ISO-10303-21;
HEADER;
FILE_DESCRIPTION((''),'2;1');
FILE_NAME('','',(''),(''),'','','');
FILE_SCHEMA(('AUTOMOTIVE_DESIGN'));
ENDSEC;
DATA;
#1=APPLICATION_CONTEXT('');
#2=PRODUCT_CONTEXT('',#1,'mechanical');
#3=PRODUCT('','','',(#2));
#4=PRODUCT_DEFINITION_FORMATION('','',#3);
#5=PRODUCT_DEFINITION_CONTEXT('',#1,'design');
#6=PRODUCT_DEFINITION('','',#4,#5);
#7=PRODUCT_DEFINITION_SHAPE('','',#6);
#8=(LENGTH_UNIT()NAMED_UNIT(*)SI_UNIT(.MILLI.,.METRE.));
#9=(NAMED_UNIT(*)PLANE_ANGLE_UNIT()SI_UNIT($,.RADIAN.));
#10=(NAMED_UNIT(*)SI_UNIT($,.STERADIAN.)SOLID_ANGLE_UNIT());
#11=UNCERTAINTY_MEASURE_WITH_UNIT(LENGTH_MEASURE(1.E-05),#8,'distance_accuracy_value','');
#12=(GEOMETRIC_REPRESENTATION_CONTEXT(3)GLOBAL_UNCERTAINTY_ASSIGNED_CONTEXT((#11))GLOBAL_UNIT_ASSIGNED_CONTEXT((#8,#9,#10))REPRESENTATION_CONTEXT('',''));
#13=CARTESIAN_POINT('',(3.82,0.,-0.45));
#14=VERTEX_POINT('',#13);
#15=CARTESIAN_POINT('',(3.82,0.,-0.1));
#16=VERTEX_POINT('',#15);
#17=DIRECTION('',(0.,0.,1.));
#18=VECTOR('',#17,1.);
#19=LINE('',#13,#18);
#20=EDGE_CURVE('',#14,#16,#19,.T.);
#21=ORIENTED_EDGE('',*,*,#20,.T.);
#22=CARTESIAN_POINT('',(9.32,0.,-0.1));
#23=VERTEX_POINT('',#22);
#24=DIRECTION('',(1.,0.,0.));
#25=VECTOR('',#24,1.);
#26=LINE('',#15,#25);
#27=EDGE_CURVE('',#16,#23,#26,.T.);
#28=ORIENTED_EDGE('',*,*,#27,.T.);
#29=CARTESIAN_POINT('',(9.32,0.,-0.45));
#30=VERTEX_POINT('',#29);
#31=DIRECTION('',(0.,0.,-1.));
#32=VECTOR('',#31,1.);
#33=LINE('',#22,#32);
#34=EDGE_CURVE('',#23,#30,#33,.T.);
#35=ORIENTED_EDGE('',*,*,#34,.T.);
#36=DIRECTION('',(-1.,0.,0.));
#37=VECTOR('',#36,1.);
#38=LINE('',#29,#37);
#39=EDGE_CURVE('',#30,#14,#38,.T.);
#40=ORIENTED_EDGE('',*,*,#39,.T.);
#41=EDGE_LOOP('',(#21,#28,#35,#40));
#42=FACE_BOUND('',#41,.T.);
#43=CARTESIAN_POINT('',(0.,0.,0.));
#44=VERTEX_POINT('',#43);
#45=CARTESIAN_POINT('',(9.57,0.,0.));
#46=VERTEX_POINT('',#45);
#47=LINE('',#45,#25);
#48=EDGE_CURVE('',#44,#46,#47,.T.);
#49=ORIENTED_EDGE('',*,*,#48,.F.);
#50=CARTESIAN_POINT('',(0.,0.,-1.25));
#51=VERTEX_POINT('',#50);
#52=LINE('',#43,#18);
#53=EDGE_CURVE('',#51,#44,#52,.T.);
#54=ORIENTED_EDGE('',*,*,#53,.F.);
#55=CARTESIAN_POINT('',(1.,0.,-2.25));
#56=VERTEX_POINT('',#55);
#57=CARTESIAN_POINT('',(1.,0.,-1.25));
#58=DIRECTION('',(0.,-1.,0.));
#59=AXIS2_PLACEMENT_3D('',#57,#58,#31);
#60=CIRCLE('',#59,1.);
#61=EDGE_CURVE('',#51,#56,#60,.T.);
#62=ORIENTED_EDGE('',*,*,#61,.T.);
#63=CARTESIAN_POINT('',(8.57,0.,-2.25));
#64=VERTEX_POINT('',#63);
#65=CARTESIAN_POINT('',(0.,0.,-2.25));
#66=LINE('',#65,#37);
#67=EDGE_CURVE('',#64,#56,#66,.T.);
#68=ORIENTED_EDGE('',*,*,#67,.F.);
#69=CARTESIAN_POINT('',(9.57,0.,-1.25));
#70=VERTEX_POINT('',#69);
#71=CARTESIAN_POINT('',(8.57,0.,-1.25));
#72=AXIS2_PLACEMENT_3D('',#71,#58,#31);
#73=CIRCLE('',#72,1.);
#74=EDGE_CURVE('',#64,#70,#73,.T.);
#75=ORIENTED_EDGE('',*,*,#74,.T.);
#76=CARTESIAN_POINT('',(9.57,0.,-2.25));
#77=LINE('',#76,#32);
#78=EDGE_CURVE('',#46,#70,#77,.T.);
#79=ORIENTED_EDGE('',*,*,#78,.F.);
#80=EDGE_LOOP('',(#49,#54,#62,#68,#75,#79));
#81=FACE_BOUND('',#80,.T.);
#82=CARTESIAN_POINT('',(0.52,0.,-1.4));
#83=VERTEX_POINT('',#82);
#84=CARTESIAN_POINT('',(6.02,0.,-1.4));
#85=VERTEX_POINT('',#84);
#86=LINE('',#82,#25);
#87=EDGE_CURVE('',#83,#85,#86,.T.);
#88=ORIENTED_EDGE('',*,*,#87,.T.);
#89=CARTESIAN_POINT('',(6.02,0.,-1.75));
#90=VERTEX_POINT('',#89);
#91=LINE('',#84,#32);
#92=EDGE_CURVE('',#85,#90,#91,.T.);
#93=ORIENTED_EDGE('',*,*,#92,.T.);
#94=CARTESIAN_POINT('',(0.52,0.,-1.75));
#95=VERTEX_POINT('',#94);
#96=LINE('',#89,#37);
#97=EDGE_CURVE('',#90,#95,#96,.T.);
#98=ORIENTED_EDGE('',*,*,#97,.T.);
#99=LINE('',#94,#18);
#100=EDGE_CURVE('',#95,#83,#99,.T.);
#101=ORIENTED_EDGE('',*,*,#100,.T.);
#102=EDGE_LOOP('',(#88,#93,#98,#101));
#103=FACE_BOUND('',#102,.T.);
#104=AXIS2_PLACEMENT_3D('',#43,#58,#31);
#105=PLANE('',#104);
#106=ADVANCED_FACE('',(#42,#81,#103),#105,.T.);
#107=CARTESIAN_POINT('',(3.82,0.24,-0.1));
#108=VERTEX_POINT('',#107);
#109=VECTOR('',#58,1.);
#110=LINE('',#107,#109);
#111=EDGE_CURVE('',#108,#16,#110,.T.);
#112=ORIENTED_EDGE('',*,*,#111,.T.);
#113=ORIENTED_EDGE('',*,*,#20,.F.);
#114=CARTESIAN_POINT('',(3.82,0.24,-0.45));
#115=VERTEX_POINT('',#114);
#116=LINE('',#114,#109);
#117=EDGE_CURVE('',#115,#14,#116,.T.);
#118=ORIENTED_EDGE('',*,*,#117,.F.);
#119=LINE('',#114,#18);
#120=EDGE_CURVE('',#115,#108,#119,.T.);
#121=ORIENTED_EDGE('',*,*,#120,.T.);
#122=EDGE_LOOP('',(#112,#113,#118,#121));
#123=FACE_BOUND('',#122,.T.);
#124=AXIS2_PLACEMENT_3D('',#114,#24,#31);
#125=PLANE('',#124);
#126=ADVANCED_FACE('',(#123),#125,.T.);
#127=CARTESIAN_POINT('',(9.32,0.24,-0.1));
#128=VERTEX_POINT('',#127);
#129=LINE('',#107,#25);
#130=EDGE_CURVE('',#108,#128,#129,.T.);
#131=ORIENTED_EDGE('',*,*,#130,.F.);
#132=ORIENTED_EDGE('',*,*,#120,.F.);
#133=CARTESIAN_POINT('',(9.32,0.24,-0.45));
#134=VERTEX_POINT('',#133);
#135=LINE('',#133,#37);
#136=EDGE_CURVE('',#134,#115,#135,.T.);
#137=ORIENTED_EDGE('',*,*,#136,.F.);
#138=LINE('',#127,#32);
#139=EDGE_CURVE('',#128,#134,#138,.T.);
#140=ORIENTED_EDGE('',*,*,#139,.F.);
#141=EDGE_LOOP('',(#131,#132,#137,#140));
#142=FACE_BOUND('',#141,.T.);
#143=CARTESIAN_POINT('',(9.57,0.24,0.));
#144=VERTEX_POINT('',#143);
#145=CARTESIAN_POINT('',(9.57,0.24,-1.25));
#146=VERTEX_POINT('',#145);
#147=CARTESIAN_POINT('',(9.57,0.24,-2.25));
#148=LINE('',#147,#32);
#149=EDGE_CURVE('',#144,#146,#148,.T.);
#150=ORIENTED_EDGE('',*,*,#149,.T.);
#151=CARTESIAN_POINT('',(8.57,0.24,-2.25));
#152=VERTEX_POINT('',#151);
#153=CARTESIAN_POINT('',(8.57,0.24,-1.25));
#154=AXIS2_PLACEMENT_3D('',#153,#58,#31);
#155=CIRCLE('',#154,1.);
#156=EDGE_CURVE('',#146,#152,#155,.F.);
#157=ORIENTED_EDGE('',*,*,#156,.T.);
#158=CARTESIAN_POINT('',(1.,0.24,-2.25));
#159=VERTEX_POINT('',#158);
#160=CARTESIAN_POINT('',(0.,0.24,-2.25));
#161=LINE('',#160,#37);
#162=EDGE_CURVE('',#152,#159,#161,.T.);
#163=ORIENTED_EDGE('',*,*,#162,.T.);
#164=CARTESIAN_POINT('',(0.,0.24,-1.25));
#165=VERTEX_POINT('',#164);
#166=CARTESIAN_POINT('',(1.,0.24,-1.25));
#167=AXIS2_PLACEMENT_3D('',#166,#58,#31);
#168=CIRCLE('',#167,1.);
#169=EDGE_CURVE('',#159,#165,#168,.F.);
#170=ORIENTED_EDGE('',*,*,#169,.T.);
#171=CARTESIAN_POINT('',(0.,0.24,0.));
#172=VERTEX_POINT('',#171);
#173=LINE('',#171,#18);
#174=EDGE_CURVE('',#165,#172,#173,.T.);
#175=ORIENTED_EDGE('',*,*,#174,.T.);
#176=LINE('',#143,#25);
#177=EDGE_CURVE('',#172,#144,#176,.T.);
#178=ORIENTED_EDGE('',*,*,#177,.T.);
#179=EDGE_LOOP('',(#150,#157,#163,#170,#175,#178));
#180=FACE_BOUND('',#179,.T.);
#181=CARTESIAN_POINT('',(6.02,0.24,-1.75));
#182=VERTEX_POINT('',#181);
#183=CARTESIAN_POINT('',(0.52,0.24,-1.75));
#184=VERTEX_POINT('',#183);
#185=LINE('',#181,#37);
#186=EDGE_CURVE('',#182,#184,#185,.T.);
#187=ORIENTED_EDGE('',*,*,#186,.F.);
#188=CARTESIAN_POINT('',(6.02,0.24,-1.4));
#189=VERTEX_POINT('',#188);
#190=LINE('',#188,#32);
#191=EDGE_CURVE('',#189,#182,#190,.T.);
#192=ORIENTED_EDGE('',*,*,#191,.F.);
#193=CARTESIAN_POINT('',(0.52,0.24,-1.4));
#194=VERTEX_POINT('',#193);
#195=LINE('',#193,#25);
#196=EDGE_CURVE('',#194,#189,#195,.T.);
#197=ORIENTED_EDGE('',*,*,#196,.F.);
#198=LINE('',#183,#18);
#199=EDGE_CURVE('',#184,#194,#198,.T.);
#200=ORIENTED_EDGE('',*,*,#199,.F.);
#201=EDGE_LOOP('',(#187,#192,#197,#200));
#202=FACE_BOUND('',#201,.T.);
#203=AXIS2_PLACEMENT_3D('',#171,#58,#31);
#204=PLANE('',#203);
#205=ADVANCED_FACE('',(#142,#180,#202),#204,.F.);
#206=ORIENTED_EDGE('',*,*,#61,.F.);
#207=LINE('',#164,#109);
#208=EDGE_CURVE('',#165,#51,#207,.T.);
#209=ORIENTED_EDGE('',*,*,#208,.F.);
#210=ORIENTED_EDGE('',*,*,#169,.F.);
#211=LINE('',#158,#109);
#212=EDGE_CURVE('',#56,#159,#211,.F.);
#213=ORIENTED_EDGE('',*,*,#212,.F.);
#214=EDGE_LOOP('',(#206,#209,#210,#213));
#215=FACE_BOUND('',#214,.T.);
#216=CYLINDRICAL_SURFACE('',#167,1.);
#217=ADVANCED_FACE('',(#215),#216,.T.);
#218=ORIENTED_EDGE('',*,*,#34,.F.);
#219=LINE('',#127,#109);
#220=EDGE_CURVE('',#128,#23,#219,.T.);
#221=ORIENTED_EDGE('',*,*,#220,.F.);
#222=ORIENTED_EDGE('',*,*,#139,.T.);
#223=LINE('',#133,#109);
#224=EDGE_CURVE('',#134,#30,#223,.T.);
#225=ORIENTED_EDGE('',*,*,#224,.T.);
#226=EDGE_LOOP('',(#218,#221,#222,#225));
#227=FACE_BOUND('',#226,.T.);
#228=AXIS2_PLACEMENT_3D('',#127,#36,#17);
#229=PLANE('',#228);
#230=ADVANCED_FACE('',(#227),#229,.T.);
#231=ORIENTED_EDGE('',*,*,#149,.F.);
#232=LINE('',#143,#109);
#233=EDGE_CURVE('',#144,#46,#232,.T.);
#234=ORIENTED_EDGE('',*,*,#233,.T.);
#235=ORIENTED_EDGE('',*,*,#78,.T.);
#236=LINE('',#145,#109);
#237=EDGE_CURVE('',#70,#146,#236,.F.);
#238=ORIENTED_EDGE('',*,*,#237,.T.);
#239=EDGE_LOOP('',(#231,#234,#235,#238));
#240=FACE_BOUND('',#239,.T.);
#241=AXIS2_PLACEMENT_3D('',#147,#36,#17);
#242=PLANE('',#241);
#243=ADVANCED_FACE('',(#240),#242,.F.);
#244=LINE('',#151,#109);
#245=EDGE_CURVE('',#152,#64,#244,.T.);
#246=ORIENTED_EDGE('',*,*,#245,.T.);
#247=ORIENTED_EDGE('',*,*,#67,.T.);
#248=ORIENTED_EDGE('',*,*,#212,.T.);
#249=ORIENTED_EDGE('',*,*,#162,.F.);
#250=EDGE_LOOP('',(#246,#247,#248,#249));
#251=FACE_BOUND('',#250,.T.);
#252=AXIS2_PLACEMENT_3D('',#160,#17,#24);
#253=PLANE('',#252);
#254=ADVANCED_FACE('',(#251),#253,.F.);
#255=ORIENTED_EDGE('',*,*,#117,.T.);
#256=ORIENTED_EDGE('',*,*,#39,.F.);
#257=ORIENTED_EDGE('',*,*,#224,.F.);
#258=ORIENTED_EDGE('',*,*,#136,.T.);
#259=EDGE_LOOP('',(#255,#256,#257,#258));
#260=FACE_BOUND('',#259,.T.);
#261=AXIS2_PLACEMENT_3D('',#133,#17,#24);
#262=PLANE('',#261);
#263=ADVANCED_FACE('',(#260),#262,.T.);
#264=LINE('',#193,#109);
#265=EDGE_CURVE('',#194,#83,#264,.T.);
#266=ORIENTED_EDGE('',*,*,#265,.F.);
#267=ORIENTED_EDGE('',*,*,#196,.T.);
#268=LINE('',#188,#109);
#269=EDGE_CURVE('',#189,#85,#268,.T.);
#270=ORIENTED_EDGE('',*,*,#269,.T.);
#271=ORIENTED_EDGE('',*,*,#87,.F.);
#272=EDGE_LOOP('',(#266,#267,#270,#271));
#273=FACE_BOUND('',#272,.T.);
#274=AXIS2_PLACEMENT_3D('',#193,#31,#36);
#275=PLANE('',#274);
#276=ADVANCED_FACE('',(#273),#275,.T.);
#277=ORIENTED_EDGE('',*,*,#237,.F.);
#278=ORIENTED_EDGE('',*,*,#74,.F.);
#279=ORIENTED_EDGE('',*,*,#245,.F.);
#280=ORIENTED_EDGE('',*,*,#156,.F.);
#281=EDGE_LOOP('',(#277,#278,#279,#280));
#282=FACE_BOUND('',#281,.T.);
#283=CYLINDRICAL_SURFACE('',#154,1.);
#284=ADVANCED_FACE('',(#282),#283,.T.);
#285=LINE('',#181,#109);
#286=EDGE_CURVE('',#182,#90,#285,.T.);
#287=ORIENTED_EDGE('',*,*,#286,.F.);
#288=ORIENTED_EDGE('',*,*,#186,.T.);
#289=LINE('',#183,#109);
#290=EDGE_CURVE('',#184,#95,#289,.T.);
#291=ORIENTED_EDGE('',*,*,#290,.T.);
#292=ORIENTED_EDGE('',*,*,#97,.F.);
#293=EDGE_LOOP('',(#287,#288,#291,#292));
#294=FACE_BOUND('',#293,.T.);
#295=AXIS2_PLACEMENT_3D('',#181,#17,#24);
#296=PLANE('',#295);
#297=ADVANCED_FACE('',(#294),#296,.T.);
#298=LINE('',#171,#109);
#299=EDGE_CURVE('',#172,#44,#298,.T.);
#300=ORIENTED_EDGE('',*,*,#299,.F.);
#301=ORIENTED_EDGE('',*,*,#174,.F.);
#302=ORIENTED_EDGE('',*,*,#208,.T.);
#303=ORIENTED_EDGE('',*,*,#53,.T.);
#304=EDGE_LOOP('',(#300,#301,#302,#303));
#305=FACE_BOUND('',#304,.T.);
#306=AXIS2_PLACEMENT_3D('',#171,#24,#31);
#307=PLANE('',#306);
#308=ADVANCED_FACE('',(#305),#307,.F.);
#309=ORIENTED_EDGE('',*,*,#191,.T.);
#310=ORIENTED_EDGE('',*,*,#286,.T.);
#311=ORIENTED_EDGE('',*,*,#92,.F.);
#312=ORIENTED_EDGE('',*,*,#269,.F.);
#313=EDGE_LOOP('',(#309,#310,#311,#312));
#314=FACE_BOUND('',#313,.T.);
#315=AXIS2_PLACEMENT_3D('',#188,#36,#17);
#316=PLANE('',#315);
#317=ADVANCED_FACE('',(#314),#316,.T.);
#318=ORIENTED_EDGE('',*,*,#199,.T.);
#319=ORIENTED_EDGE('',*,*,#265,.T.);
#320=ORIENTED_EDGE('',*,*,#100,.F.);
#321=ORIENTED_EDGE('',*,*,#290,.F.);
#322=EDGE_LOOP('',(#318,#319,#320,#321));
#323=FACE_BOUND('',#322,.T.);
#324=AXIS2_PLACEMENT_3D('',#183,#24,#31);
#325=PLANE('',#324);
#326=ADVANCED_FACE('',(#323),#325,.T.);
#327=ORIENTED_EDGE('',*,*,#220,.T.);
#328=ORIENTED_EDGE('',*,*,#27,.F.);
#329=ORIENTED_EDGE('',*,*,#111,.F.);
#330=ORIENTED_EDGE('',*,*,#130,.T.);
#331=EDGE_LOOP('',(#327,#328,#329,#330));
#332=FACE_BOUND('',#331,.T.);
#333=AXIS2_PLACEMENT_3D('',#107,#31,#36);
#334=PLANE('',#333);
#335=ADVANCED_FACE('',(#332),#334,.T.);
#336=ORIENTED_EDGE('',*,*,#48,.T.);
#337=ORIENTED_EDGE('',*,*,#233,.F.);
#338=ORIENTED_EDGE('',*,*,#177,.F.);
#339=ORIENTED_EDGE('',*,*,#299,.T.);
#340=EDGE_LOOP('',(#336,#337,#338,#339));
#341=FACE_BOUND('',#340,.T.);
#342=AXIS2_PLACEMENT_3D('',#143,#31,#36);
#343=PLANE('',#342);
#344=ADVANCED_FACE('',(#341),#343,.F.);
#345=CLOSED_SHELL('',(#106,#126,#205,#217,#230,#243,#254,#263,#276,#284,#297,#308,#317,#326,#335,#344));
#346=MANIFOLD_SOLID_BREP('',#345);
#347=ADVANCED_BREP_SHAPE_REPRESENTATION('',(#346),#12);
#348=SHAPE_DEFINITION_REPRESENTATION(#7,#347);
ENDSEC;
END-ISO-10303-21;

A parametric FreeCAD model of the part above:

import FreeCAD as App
import Part
import Sketcher

V = App.Vector


def edges_at(feature, points):
    """Names of the edges that pass closest to the given points."""
    edges = feature.Shape.Edges
    near = lambda p: min(range(len(edges)), key=lambda i: edges[i].distToShape(Part.Vertex(*p))[0])
    return sorted({f"Edge{near(p) + 1}" for p in points})


def add_polygon(sketch, points):
    """Adds a closed chain of lines whose ends are joined by coincident constraints."""
    first, n = sketch.GeometryCount, len(points)
    for a, b in zip(points, points[1:] + points[:1]):
        sketch.addGeometry(Part.LineSegment(App.Vector(*a, 0), App.Vector(*b, 0)), False)
    for i in range(n):
        sketch.addConstraint(Sketcher.Constraint("Coincident", first + i, 2, first + (i + 1) % n, 1))

doc = App.newDocument("Part")
body = doc.addObject("PartDesign::Body", "Body")

# Sketch on XZ plane
sketch1 = body.newObject("Sketcher::SketchObject", "Sketch")
sketch1.AttachmentSupport = (doc.getObject("XZ_Plane"), [""])
sketch1.MapMode = "FlatFace"
add_polygon(sketch1, [(0, -2.25), (0, 0), (9.57, 0), (9.57, -2.25)])  # lines 0-3
add_polygon(sketch1, [(9.32, -0.1), (3.82, -0.1), (3.82, -0.45), (9.32, -0.45)])  # lines 4-7
add_polygon(sketch1, [(6.02, -1.4), (0.52, -1.4), (0.52, -1.75), (6.02, -1.75)])  # lines 8-11
sketch1.addConstraint(Sketcher.Constraint("Vertical", 0))
sketch1.addConstraint(Sketcher.Constraint("Horizontal", 1))
sketch1.addConstraint(Sketcher.Constraint("Vertical", 2))
sketch1.addConstraint(Sketcher.Constraint("Horizontal", 3))
sketch1.addConstraint(Sketcher.Constraint("Horizontal", 4))
sketch1.addConstraint(Sketcher.Constraint("Vertical", 5))
sketch1.addConstraint(Sketcher.Constraint("Horizontal", 6))
sketch1.addConstraint(Sketcher.Constraint("Vertical", 7))
sketch1.addConstraint(Sketcher.Constraint("Horizontal", 8))
sketch1.addConstraint(Sketcher.Constraint("Vertical", 9))
sketch1.addConstraint(Sketcher.Constraint("Horizontal", 10))
sketch1.addConstraint(Sketcher.Constraint("Vertical", 11))
sketch1.addConstraint(Sketcher.Constraint("Coincident", 0, 2, -1, 1))
sketch1.addConstraint(Sketcher.Constraint("Equal", 6, 8))
sketch1.addConstraint(Sketcher.Constraint("Equal", 7, 9))
sketch1.addConstraint(Sketcher.Constraint("DistanceX", 4, 2, 4, 1, 5.5))
sketch1.addConstraint(Sketcher.Constraint("DistanceX", 1, 1, 1, 2, 9.57))
sketch1.addConstraint(Sketcher.Constraint("DistanceY", 0, 1, 0, 2, 2.25))
sketch1.addConstraint(Sketcher.Constraint("DistanceY", 5, 2, 5, 1, 0.35))
sketch1.addConstraint(Sketcher.Constraint("DistanceY", 4, 2, -1, 1, 0.1))
sketch1.addConstraint(Sketcher.Constraint("DistanceY", 8, 2, -1, 1, 1.4))
sketch1.addConstraint(Sketcher.Constraint("DistanceX", 8, 2, 5, 2, 3.3))
sketch1.addConstraint(Sketcher.Constraint("DistanceX", -1, 1, 4, 2, 3.82))
pad1 = body.newObject("PartDesign::Pad", "Pad")
pad1.Profile = sketch1
pad1.Length = 0.24
pad1.Reversed = True
doc.recompute()

fillet = body.newObject("PartDesign::Fillet", "Fillet")
fillet.Base = (pad1, edges_at(pad1, [(0, 0.12, -2.25), (9.57, 0.12, -2.25)]))
fillet.Radius = 1

doc.recompute()
